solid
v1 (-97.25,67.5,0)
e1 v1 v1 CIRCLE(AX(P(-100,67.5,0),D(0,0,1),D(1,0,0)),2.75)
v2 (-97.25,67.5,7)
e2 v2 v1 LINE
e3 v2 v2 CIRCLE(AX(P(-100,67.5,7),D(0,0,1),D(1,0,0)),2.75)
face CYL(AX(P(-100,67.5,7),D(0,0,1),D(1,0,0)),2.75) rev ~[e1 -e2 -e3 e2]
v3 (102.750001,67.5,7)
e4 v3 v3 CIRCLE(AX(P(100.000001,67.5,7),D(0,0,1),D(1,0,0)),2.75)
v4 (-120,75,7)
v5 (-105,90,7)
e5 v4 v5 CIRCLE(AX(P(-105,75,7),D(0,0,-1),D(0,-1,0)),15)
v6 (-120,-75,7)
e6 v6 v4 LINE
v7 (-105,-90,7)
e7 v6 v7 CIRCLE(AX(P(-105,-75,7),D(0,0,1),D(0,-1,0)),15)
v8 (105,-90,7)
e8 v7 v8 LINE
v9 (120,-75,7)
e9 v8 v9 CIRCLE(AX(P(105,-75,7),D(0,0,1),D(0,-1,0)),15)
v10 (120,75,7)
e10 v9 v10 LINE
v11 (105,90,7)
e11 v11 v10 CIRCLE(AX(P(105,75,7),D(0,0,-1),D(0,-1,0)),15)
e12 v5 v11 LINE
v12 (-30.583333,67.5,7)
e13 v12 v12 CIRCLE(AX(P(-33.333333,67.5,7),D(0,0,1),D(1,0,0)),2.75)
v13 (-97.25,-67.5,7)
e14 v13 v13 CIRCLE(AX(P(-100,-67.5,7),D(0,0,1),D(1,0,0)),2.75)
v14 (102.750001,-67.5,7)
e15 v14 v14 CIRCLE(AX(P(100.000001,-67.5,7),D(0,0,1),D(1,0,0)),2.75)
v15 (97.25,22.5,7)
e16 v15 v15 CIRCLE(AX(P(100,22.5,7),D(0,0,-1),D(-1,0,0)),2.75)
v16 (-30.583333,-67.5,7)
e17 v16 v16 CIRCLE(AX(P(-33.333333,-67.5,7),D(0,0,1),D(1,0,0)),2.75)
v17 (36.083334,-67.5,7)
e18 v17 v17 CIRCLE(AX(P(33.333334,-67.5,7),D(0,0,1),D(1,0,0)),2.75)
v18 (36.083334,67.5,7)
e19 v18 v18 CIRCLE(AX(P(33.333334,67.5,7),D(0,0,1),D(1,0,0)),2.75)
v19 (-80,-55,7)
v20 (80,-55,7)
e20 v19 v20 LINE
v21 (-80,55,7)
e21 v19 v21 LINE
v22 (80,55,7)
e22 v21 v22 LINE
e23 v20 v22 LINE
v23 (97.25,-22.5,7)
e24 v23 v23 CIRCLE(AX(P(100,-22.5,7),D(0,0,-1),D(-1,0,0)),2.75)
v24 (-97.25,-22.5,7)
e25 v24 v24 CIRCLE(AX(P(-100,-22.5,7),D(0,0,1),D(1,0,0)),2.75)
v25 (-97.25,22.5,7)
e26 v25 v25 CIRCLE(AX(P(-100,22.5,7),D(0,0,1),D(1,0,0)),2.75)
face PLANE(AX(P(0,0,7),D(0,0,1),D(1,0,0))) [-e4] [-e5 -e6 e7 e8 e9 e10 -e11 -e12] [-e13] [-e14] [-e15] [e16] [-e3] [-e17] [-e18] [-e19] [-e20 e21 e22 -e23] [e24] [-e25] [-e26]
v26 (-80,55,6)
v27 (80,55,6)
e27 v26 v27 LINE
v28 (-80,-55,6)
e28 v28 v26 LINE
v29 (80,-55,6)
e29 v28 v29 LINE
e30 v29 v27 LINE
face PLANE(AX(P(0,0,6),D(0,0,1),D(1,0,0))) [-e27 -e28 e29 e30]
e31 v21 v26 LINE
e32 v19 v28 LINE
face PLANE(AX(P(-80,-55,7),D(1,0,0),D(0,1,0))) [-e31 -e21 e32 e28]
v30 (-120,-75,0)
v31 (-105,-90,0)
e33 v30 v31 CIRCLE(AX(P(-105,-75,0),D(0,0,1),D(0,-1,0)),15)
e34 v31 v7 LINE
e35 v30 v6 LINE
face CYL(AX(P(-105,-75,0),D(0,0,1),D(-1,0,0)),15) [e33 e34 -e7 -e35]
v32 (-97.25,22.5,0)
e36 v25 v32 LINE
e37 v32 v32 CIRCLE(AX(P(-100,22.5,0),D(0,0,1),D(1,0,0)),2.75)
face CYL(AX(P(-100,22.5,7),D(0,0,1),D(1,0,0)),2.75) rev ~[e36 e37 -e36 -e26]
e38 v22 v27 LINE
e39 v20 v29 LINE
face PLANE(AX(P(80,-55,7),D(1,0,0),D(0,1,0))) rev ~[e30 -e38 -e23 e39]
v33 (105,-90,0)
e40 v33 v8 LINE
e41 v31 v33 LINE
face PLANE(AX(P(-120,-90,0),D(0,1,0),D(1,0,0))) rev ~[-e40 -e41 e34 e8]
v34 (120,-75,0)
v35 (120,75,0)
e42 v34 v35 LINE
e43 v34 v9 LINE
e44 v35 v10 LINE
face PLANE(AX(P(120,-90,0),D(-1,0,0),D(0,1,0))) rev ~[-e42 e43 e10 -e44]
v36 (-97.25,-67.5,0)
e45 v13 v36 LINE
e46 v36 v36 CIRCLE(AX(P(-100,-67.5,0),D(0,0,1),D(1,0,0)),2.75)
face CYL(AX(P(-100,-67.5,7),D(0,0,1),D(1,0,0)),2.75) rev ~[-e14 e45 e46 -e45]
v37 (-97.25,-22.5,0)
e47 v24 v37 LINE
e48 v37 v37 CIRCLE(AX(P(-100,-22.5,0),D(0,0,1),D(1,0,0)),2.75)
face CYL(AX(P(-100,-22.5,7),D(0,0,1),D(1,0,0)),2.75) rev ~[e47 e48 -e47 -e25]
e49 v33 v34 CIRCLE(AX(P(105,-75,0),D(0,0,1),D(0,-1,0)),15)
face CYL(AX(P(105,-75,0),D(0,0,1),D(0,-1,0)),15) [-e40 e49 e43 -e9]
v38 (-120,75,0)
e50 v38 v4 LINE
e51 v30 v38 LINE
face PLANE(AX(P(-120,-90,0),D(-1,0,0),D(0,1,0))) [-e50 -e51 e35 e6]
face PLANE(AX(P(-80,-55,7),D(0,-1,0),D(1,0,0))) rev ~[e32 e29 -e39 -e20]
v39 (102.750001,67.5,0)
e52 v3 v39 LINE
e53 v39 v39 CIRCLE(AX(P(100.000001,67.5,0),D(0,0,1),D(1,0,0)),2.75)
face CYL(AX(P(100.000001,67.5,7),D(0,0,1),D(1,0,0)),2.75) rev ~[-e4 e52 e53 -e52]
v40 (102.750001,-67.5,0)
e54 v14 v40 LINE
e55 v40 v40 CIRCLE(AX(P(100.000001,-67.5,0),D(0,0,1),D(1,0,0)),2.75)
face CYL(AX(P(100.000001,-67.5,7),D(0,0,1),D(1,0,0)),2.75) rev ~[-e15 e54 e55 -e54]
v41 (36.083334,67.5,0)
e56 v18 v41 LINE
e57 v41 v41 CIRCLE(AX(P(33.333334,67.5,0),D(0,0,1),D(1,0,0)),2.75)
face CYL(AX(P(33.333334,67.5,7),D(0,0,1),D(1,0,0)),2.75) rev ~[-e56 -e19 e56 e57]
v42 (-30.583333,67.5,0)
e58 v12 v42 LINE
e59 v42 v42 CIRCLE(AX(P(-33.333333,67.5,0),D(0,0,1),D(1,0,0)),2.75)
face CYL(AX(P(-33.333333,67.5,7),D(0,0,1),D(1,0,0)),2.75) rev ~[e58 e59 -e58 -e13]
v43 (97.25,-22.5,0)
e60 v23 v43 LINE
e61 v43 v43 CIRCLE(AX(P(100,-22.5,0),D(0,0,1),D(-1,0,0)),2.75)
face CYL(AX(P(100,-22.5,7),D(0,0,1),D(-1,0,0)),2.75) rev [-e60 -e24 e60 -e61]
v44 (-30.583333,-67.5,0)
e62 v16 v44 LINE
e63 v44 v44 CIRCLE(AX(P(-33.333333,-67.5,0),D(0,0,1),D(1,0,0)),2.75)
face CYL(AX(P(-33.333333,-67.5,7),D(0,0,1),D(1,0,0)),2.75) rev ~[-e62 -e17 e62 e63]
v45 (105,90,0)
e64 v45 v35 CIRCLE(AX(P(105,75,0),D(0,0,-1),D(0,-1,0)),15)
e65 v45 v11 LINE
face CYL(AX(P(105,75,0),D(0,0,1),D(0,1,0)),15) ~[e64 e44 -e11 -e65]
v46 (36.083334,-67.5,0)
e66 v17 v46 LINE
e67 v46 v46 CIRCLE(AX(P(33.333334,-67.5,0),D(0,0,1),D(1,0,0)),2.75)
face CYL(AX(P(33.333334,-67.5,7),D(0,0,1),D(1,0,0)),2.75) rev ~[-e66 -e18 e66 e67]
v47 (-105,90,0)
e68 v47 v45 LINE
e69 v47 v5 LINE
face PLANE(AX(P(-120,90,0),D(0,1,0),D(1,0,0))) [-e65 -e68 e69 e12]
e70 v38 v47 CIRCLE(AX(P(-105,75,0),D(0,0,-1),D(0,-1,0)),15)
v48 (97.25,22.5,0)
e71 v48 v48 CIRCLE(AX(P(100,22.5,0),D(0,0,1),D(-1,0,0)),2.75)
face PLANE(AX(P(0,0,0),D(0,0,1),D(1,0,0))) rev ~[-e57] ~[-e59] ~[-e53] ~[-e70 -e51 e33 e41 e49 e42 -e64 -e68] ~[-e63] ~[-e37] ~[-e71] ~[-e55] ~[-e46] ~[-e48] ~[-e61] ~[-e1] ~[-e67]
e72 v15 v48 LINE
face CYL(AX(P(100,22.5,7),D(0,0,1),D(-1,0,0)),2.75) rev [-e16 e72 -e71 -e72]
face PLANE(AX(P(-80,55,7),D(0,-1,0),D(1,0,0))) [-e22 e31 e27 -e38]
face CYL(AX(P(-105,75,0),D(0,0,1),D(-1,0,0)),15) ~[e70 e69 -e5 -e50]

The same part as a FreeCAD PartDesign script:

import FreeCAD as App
import Part
import Sketcher


def edges_at(feature, points):
    """Names of the edges that pass closest to the given points."""
    edges = feature.Shape.Edges
    near = lambda p: min(range(len(edges)), key=lambda i: edges[i].distToShape(Part.Vertex(*p))[0])
    return sorted({f"Edge{near(p) + 1}" for p in points})


def add_polygon(sketch, points):
    """Adds a closed chain of lines whose ends are joined by coincident constraints."""
    first, n = sketch.GeometryCount, len(points)
    for a, b in zip(points, points[1:] + points[:1]):
        sketch.addGeometry(Part.LineSegment(App.Vector(*a, 0), App.Vector(*b, 0)), False)
    for i in range(n):
        sketch.addConstraint(Sketcher.Constraint("Coincident", first + i, 2, first + (i + 1) % n, 1))

doc = App.newDocument("Part")
body = doc.addObject("PartDesign::Body", "Body")

# Sketch on XY plane
sketch1 = doc.addObject("Sketcher::SketchObject", "Sketch")
body.addObject(sketch1)
sketch1.AttachmentSupport = (doc.XY_Plane, [""])
sketch1.MapMode = "FlatFace"
add_polygon(sketch1, [(-120, 90), (-120, -90), (120, -90), (120, 90)])  # lines 0-3
sketch1.addConstraint([
    Sketcher.Constraint("Vertical", 0),
    Sketcher.Constraint("Horizontal", 1),
    Sketcher.Constraint("Vertical", 2),
    Sketcher.Constraint("Horizontal", 3),
    Sketcher.Constraint("Symmetric", 0, 2, 2, 2, -1, 1),
    Sketcher.Constraint("DistanceX", 1, 1, 1, 2, 240.0),
    Sketcher.Constraint("DistanceY", 0, 2, 0, 1, 180.0),
])
pad1 = doc.addObject("PartDesign::Pad", "Pad")
body.addObject(pad1)
pad1.Profile = sketch1
pad1.Length = 7

# Sketch on XY plane
sketch2 = doc.addObject("Sketcher::SketchObject", "Sketch001")
body.addObject(sketch2)
sketch2.AttachmentSupport = (doc.XY_Plane, [""])
sketch2.MapMode = "FlatFace"
sketch2.AttachmentOffset = App.Placement(App.Vector(0, 0, 7), App.Rotation())
sketch2.addGeometry([
    Part.Circle(App.Vector(-100, 67.5, 0), App.Vector(0, 0, 1), 2.75),
    Part.Circle(App.Vector(-100, -67.5, 0), App.Vector(0, 0, 1), 2.75),
], False)
sketch2.addConstraint([
    Sketcher.Constraint("Equal", 0, 1),
    Sketcher.Constraint("Symmetric", 0, 3, 1, 3, -1),
    Sketcher.Constraint("Diameter", 0, 5.5),
    Sketcher.Constraint("DistanceX", 0, 3, -1, 1, 100.0),
    Sketcher.Constraint("DistanceY", 1, 3, 0, 3, 135.0),
])
pocket1 = doc.addObject("PartDesign::Pocket", "Pocket")
body.addObject(pocket1)
pocket1.Profile = sketch2
pocket1.Type = "ThroughAll"
doc.recompute()

linearpattern = doc.addObject("PartDesign::LinearPattern", "LinearPattern")
body.addObject(linearpattern)
linearpattern.Originals = [pocket1]
linearpattern.Direction = (doc.X_Axis, [""])
linearpattern.Mode = "offset"
linearpattern.Offset = 66.666667
linearpattern.Occurrences = 4
body.Tip = linearpattern

# Sketch on XY plane
sketch3 = doc.addObject("Sketcher::SketchObject", "Sketch002")
body.addObject(sketch3)
sketch3.AttachmentSupport = (doc.XY_Plane, [""])
sketch3.MapMode = "FlatFace"
sketch3.AttachmentOffset = App.Placement(App.Vector(0, 0, 7), App.Rotation())
sketch3.addGeometry([
    Part.Circle(App.Vector(-100, 22.5, 0), App.Vector(0, 0, 1), 2.75),
    Part.Circle(App.Vector(-100, -22.5, 0), App.Vector(0, 0, 1), 2.75),
], False)
sketch3.addConstraint([
    Sketcher.Constraint("Equal", 0, 1),
    Sketcher.Constraint("Symmetric", 0, 3, 1, 3, -1),
    Sketcher.Constraint("Diameter", 0, 5.5),
    Sketcher.Constraint("DistanceX", 0, 3, -1, 1, 100.0),
    Sketcher.Constraint("DistanceY", 1, 3, 0, 3, 45.0),
])
pocket2 = doc.addObject("PartDesign::Pocket", "Pocket001")
body.addObject(pocket2)
pocket2.Profile = sketch3
pocket2.Type = "ThroughAll"
doc.recompute()

mirrored = doc.addObject("PartDesign::Mirrored", "Mirrored")
body.addObject(mirrored)
mirrored.Originals = [pocket2]
mirrored.MirrorPlane = (doc.YZ_Plane, [""])
body.Tip = mirrored

# Sketch on XY plane
sketch4 = doc.addObject("Sketcher::SketchObject", "Sketch003")
body.addObject(sketch4)
sketch4.AttachmentSupport = (doc.XY_Plane, [""])
sketch4.MapMode = "FlatFace"
sketch4.AttachmentOffset = App.Placement(App.Vector(0, 0, 7), App.Rotation())
add_polygon(sketch4, [(-80, 55), (-80, -55), (80, -55), (80, 55)])  # lines 0-3
sketch4.addConstraint([
    Sketcher.Constraint("Vertical", 0),
    Sketcher.Constraint("Horizontal", 1),
    Sketcher.Constraint("Vertical", 2),
    Sketcher.Constraint("Horizontal", 3),
    Sketcher.Constraint("Symmetric", 0, 2, 2, 2, -1, 1),
    Sketcher.Constraint("DistanceX", 1, 1, 1, 2, 160.0),
    Sketcher.Constraint("DistanceY", 0, 2, 0, 1, 110.0),
])
pocket3 = doc.addObject("PartDesign::Pocket", "Pocket002")
body.addObject(pocket3)
pocket3.Profile = sketch4
pocket3.Length = 1
doc.recompute()

fillet = doc.addObject("PartDesign::Fillet", "Fillet")
body.addObject(fillet)
fillet.Base = (pocket3, edges_at(pocket3, [
    (-120, -90, 3.5),
    (-120, 90, 3.5),
    (120, 90, 3.5),
    (120, -90, 3.5),
]))
fillet.Radius = 15

doc.recompute()
